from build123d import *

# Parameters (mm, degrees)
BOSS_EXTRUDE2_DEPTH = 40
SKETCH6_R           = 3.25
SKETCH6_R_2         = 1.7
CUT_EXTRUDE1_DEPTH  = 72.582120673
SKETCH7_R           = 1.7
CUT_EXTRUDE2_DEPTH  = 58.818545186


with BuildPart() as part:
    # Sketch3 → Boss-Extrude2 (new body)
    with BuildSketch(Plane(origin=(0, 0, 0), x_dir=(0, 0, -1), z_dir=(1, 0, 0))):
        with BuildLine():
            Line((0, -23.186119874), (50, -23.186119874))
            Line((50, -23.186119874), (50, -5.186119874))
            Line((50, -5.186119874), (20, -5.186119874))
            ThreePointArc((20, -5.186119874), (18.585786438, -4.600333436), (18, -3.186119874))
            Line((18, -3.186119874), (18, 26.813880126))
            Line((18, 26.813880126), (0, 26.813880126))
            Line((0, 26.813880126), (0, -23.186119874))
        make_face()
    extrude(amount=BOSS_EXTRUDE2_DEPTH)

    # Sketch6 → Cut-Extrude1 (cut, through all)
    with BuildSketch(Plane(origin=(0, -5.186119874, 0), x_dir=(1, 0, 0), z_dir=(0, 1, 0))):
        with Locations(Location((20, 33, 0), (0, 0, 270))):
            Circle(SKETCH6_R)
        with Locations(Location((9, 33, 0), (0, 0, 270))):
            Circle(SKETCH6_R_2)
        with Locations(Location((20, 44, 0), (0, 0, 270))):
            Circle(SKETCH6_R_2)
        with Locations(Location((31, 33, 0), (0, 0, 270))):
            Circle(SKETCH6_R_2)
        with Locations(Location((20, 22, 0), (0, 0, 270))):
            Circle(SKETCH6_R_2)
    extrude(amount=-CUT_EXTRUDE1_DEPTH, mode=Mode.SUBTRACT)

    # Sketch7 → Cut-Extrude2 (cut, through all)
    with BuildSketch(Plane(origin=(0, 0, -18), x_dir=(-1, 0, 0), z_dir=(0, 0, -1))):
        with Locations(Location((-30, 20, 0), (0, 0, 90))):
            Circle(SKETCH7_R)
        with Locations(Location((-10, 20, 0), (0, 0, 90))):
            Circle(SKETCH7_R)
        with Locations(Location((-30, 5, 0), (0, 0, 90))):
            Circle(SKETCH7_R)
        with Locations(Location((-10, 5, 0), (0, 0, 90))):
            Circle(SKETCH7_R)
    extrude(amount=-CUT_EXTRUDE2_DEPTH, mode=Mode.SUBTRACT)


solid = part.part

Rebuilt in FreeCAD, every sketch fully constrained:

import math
import FreeCAD as App
import Part
import Sketcher

V = App.Vector
Q = App.Units.Quantity

doc = App.newDocument("Part")
body = doc.addObject("PartDesign::Body", "Body")

sketch1 = body.newObject("Sketcher::SketchObject", "Sketch")
sketch1.AttachmentSupport = (doc.getObject("YZ_Plane"), [""])
sketch1.MapMode = "FlatFace"
sketch1.addGeometry(Part.LineSegment(V(-23.18612, 0, 0), V(-23.18612, -50, 0)), False)
sketch1.addGeometry(Part.LineSegment(V(-23.18612, -50, 0), V(-5.18612, -50, 0)), False)
sketch1.addGeometry(Part.LineSegment(V(-5.18612, -50, 0), V(-5.18612, -20, 0)), False)
sketch1.addGeometry(Part.ArcOfCircle(Part.Circle(V(-3.18612, -20, 0), V(0, 0, 1), 2), math.radians(90), math.radians(180)), False)
sketch1.addGeometry(Part.LineSegment(V(-3.18612, -18, 0), V(26.81388, -18, 0)), False)
sketch1.addGeometry(Part.LineSegment(V(26.81388, -18, 0), V(26.81388, 0, 0)), False)
sketch1.addGeometry(Part.LineSegment(V(26.81388, 0, 0), V(-23.18612, 0, 0)), False)
sketch1.addConstraint(Sketcher.Constraint("Coincident", 0, 2, 1, 1))
sketch1.addConstraint(Sketcher.Constraint("Coincident", 1, 2, 2, 1))
sketch1.addConstraint(Sketcher.Constraint("Tangent", 2, 2, 3, 2))
sketch1.addConstraint(Sketcher.Constraint("Tangent", 3, 1, 4, 1))
sketch1.addConstraint(Sketcher.Constraint("Coincident", 4, 2, 5, 1))
sketch1.addConstraint(Sketcher.Constraint("Coincident", 5, 2, 6, 1))
sketch1.addConstraint(Sketcher.Constraint("Coincident", 6, 2, 0, 1))
sketch1.addConstraint(Sketcher.Constraint("Vertical", 0))
sketch1.addConstraint(Sketcher.Constraint("Horizontal", 1))
sketch1.addConstraint(Sketcher.Constraint("Vertical", 2))
sketch1.addConstraint(Sketcher.Constraint("Horizontal", 4))
sketch1.addConstraint(Sketcher.Constraint("Vertical", 5))
sketch1.addConstraint(Sketcher.Constraint("Horizontal", 6))
sketch1.addConstraint(Sketcher.Constraint("PointOnObject", 5, 2, -1))
sketch1.addConstraint(Sketcher.Constraint("Equal", 6, 0))
sketch1.addConstraint(Sketcher.Constraint("Equal", 4, 2))
sketch1.addConstraint(Sketcher.Constraint("Radius", 3, Q("2 mm")))
sketch1.addConstraint(Sketcher.Constraint("DistanceX", 1, 1, 1, 2, Q("18 mm")))
sketch1.addConstraint(Sketcher.Constraint("DistanceX", 4, 1, 4, 2, Q("30 mm")))
sketch1.addConstraint(Sketcher.Constraint("DistanceX", 3, 3, -1, 1, Q("3.18612 mm")))
pad1 = body.newObject("PartDesign::Pad", "Pad")
pad1.Profile = sketch1
pad1.Length = 40

sketch2 = body.newObject("Sketcher::SketchObject", "Sketch001")
sketch2.AttachmentSupport = (doc.getObject("XZ_Plane"), [""])
sketch2.MapMode = "FlatFace"
sketch2.AttachmentOffset = App.Placement(V(0, 0, 5.18612), App.Rotation())
sketch2.addGeometry(Part.Circle(V(20, -33, 0), V(0, 0, 1), 3.25), False)
sketch2.addGeometry(Part.Circle(V(9, -33, 0), V(0, 0, 1), 1.7), False)
sketch2.addGeometry(Part.Circle(V(20, -44, 0), V(0, 0, 1), 1.7), False)
sketch2.addGeometry(Part.Circle(V(31, -33, 0), V(0, 0, 1), 1.7), False)
sketch2.addGeometry(Part.Circle(V(20, -22, 0), V(0, 0, 1), 1.7), False)
sketch2.addConstraint(Sketcher.Constraint("Equal", 1, 2))
sketch2.addConstraint(Sketcher.Constraint("Equal", 2, 3))
sketch2.addConstraint(Sketcher.Constraint("Equal", 3, 4))
sketch2.addConstraint(Sketcher.Constraint("Horizontal", 0, 3, 1, 3))
sketch2.addConstraint(Sketcher.Constraint("Horizontal", 1, 3, 3, 3))
sketch2.addConstraint(Sketcher.Constraint("Vertical", 0, 3, 2, 3))
sketch2.addConstraint(Sketcher.Constraint("Vertical", 2, 3, 4, 3))
sketch2.addConstraint(Sketcher.Constraint("Diameter", 0, Q("6.5 mm")))
sketch2.addConstraint(Sketcher.Constraint("Diameter", 1, Q("3.4 mm")))
sketch2.addConstraint(Sketcher.Constraint("DistanceX", -1, 1, 0, 3, Q("20 mm")))
sketch2.addConstraint(Sketcher.Constraint("DistanceY", 0, 3, -1, 1, Q("33 mm")))
sketch2.addConstraint(Sketcher.Constraint("DistanceX", -1, 1, 1, 3, Q("9 mm")))
sketch2.addConstraint(Sketcher.Constraint("DistanceY", 2, 3, -1, 1, Q("44 mm")))
sketch2.addConstraint(Sketcher.Constraint("DistanceX", -1, 1, 3, 3, Q("31 mm")))
sketch2.addConstraint(Sketcher.Constraint("DistanceY", 4, 3, -1, 1, Q("22 mm")))
pocket1 = body.newObject("PartDesign::Pocket", "Pocket")
pocket1.Profile = sketch2
pocket1.Type = "ThroughAll"
pocket1.Reversed = True

sketch3 = body.newObject("Sketcher::SketchObject", "Sketch002")
sketch3.AttachmentSupport = (doc.getObject("XY_Plane"), [""])
sketch3.MapMode = "FlatFace"
sketch3.AttachmentOffset = App.Placement(V(0, 0, -18), App.Rotation())
sketch3.addGeometry(Part.Circle(V(30, 20, 0), V(0, 0, 1), 1.7), False)
sketch3.addGeometry(Part.Circle(V(10, 20, 0), V(0, 0, 1), 1.7), False)
sketch3.addGeometry(Part.Circle(V(30, 5, 0), V(0, 0, 1), 1.7), False)
sketch3.addGeometry(Part.Circle(V(10, 5, 0), V(0, 0, 1), 1.7), False)
sketch3.addConstraint(Sketcher.Constraint("Equal", 0, 1))
sketch3.addConstraint(Sketcher.Constraint("Equal", 1, 2))
sketch3.addConstraint(Sketcher.Constraint("Equal", 2, 3))
sketch3.addConstraint(Sketcher.Constraint("Horizontal", 0, 3, 1, 3))
sketch3.addConstraint(Sketcher.Constraint("Horizontal", 2, 3, 3, 3))
sketch3.addConstraint(Sketcher.Constraint("Vertical", 0, 3, 2, 3))
sketch3.addConstraint(Sketcher.Constraint("Vertical", 1, 3, 3, 3))
sketch3.addConstraint(Sketcher.Constraint("Diameter", 0, Q("3.4 mm")))
sketch3.addConstraint(Sketcher.Constraint("DistanceX", -1, 1, 0, 3, Q("30 mm")))
sketch3.addConstraint(Sketcher.Constraint("DistanceY", -1, 1, 0, 3, Q("20 mm")))
sketch3.addConstraint(Sketcher.Constraint("DistanceX", -1, 1, 1, 3, Q("10 mm")))
sketch3.addConstraint(Sketcher.Constraint("DistanceY", -1, 1, 2, 3, Q("5 mm")))
pocket2 = body.newObject("PartDesign::Pocket", "Pocket001")
pocket2.Profile = sketch3
pocket2.Type = "ThroughAll"
pocket2.Reversed = True

doc.recompute()
